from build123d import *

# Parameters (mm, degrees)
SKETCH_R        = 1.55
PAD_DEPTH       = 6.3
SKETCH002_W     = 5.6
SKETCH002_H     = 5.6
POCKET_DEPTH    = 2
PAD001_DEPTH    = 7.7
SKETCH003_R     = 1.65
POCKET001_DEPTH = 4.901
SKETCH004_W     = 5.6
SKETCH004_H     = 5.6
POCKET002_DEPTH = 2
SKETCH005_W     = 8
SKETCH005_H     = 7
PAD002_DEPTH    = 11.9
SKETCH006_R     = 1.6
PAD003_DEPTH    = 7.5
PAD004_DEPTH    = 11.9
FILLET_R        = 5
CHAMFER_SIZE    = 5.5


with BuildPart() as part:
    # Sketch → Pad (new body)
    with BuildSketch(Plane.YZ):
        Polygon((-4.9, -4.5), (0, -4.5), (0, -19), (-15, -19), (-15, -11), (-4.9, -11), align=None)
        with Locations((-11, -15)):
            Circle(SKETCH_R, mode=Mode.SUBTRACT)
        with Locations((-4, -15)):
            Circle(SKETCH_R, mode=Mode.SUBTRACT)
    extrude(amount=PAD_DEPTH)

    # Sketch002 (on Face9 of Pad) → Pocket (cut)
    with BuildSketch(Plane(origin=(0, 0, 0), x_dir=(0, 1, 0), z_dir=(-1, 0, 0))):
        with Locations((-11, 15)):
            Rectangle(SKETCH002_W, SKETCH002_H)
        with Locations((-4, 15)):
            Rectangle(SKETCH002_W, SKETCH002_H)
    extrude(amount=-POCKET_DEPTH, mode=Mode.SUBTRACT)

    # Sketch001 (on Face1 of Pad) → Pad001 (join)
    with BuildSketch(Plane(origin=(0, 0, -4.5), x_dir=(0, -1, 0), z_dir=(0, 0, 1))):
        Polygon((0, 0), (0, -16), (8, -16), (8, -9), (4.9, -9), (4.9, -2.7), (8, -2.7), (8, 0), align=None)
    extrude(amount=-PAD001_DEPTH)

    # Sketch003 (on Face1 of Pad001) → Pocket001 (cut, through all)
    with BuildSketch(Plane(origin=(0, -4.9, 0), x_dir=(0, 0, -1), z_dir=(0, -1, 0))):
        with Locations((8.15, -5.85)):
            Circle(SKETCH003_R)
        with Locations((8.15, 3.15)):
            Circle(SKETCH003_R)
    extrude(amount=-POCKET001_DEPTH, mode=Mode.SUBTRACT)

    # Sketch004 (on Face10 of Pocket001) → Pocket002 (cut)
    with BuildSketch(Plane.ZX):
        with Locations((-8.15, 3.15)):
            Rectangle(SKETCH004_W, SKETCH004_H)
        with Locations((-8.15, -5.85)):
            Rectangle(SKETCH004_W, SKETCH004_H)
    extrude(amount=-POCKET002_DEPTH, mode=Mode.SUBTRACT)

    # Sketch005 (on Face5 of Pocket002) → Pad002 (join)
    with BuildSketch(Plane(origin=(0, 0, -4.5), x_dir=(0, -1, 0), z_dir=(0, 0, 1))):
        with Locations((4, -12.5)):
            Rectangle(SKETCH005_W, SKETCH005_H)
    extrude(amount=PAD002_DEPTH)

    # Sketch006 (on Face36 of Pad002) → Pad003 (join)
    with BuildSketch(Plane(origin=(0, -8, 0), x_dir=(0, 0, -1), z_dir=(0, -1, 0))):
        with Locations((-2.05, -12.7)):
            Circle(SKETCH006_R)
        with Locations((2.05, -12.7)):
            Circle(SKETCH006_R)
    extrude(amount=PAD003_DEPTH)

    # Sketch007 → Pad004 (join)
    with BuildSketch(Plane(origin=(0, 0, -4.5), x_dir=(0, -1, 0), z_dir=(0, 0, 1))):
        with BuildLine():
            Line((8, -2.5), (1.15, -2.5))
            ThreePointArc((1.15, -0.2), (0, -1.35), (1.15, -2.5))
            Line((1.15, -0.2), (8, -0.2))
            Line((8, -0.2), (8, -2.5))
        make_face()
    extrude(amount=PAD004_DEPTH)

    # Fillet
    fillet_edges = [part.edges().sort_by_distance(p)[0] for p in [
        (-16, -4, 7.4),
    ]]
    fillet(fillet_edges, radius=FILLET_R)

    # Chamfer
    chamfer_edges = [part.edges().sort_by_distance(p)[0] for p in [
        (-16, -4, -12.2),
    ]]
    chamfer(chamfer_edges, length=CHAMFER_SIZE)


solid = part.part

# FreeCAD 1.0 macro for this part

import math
import FreeCAD as App
import Part
import Sketcher
from FreeCAD import Vector


def edges_at(feature, points):
    """Names of the edges that pass closest to the given points."""
    edges = feature.Shape.Edges
    near = lambda p: min(range(len(edges)), key=lambda i: edges[i].distToShape(Part.Vertex(*p))[0])
    return sorted({f"Edge{near(p) + 1}" for p in points})

doc = App.newDocument("Part")
body = doc.addObject("PartDesign::Body", "Body")

sketch1 = body.newObject("Sketcher::SketchObject", "Sketch")
sketch1.AttachmentSupport = (doc.getObject("YZ_Plane"), [""])
sketch1.MapMode = "FlatFace"
sketch1.addGeometry(Part.LineSegment(Vector(0, -4.5, 0), Vector(-4.9, -4.5, 0)), False)
sketch1.addGeometry(Part.LineSegment(Vector(-4.9, -4.5, 0), Vector(-4.9, -11, 0)), False)
sketch1.addGeometry(Part.LineSegment(Vector(-4.9, -11, 0), Vector(-15, -11, 0)), False)
sketch1.addGeometry(Part.LineSegment(Vector(-15, -11, 0), Vector(-15, -19, 0)), False)
sketch1.addGeometry(Part.LineSegment(Vector(-15, -19, 0), Vector(0, -19, 0)), False)
sketch1.addGeometry(Part.LineSegment(Vector(0, -19, 0), Vector(0, -4.5, 0)), False)
sketch1.addGeometry(Part.Circle(Vector(-4, -15, 0), Vector(0, 0, 1), 1.6), False)
sketch1.addGeometry(Part.Circle(Vector(-11, -15, 0), Vector(0, 0, 1), 1.6), False)
sketch1.addConstraint(Sketcher.Constraint("Coincident", 0, 2, 1, 1))
sketch1.addConstraint(Sketcher.Constraint("Coincident", 1, 2, 2, 1))
sketch1.addConstraint(Sketcher.Constraint("Coincident", 2, 2, 3, 1))
sketch1.addConstraint(Sketcher.Constraint("Coincident", 3, 2, 4, 1))
sketch1.addConstraint(Sketcher.Constraint("Coincident", 4, 2, 5, 1))
sketch1.addConstraint(Sketcher.Constraint("Coincident", 5, 2, 0, 1))
sketch1.addConstraint(Sketcher.Constraint("Horizontal", 0))
sketch1.addConstraint(Sketcher.Constraint("Vertical", 1))
sketch1.addConstraint(Sketcher.Constraint("Horizontal", 2))
sketch1.addConstraint(Sketcher.Constraint("Vertical", 3))
sketch1.addConstraint(Sketcher.Constraint("Horizontal", 4))
sketch1.addConstraint(Sketcher.Constraint("Vertical", 5))
sketch1.addConstraint(Sketcher.Constraint("Equal", 6, 7))
sketch1.addConstraint(Sketcher.Constraint("PointOnObject", 4, 2, -2))
sketch1.addConstraint(Sketcher.Constraint("Horizontal", 6, 3, 7, 3))
sketch1.addConstraint(Sketcher.Constraint("Diameter", 6, 3.1))
sketch1.addConstraint(Sketcher.Constraint("DistanceX", 4, 1, 4, 2, 15.0))
sketch1.addConstraint(Sketcher.Constraint("DistanceY", 3, 2, 3, 1, 8.0))
sketch1.addConstraint(Sketcher.Constraint("DistanceX", 0, 2, 0, 1, 4.9))
sketch1.addConstraint(Sketcher.Constraint("DistanceY", 1, 2, 1, 1, 6.5))
sketch1.addConstraint(Sketcher.Constraint("DistanceX", 6, 3, -1, 1, 4.0))
sketch1.addConstraint(Sketcher.Constraint("DistanceY", 6, 3, -1, 1, 15.0))
sketch1.addConstraint(Sketcher.Constraint("DistanceX", 7, 3, -1, 1, 11.0))
sketch1.addConstraint(Sketcher.Constraint("DistanceY", 1, 2, -1, 1, 11.0))
pad1 = body.newObject("PartDesign::Pad", "Pad")
pad1.Profile = sketch1
pad1.Length = 6.3

sketch2 = body.newObject("Sketcher::SketchObject", "Sketch001")
sketch2.AttachmentSupport = (doc.getObject("YZ_Plane"), [""])
sketch2.MapMode = "FlatFace"
sketch2.addGeometry(Part.LineSegment(Vector(-14, -18, 0), Vector(-14, -12, 0)), False)
sketch2.addGeometry(Part.LineSegment(Vector(-14, -12, 0), Vector(-8, -12, 0)), False)
sketch2.addGeometry(Part.LineSegment(Vector(-8, -12, 0), Vector(-8, -18, 0)), False)
sketch2.addGeometry(Part.LineSegment(Vector(-8, -18, 0), Vector(-14, -18, 0)), False)
sketch2.addGeometry(Part.LineSegment(Vector(-7, -18, 0), Vector(-7, -12, 0)), False)
sketch2.addGeometry(Part.LineSegment(Vector(-7, -12, 0), Vector(-1, -12, 0)), False)
sketch2.addGeometry(Part.LineSegment(Vector(-1, -12, 0), Vector(-1, -18, 0)), False)
sketch2.addGeometry(Part.LineSegment(Vector(-1, -18, 0), Vector(-7, -18, 0)), False)
sketch2.addConstraint(Sketcher.Constraint("Coincident", 0, 2, 1, 1))
sketch2.addConstraint(Sketcher.Constraint("Coincident", 1, 2, 2, 1))
sketch2.addConstraint(Sketcher.Constraint("Coincident", 2, 2, 3, 1))
sketch2.addConstraint(Sketcher.Constraint("Coincident", 3, 2, 0, 1))
sketch2.addConstraint(Sketcher.Constraint("Coincident", 4, 2, 5, 1))
sketch2.addConstraint(Sketcher.Constraint("Coincident", 5, 2, 6, 1))
sketch2.addConstraint(Sketcher.Constraint("Coincident", 6, 2, 7, 1))
sketch2.addConstraint(Sketcher.Constraint("Coincident", 7, 2, 4, 1))
sketch2.addConstraint(Sketcher.Constraint("Vertical", 0))
sketch2.addConstraint(Sketcher.Constraint("Horizontal", 1))
sketch2.addConstraint(Sketcher.Constraint("Vertical", 2))
sketch2.addConstraint(Sketcher.Constraint("Horizontal", 3))
sketch2.addConstraint(Sketcher.Constraint("Vertical", 4))
sketch2.addConstraint(Sketcher.Constraint("Horizontal", 5))
sketch2.addConstraint(Sketcher.Constraint("Vertical", 6))
sketch2.addConstraint(Sketcher.Constraint("Horizontal", 7))
sketch2.addConstraint(Sketcher.Constraint("Horizontal", 1, 2, 4, 2))
sketch2.addConstraint(Sketcher.Constraint("Horizontal", 3, 2, 6, 2))
sketch2.addConstraint(Sketcher.Constraint("Equal", 3, 5))
sketch2.addConstraint(Sketcher.Constraint("Equal", 7, 0))
sketch2.addConstraint(Sketcher.Constraint("DistanceX", 1, 1, 1, 2, 5.6))
sketch2.addConstraint(Sketcher.Constraint("DistanceX", 0, 2, 4, 2, 7.0))
sketch2.addConstraint(Sketcher.Constraint("DistanceX", 0, 2, -1, 1, 13.8))
sketch2.addConstraint(Sketcher.Constraint("DistanceY", 0, 2, -1, 1, 12.2))
pocket1 = body.newObject("PartDesign::Pocket", "Pocket")
pocket1.Profile = sketch2
pocket1.Length = 2
pocket1.Reversed = True

sketch3 = body.newObject("Sketcher::SketchObject", "Sketch002")
sketch3.AttachmentSupport = (doc.getObject("XY_Plane"), [""])
sketch3.MapMode = "FlatFace"
sketch3.AttachmentOffset = App.Placement(Vector(0, 0, -4.5), App.Rotation())
sketch3.addGeometry(Part.LineSegment(Vector(0, 0, 0), Vector(-16, 0, 0)), False)
sketch3.addGeometry(Part.LineSegment(Vector(-16, 0, 0), Vector(-16, -8, 0)), False)
sketch3.addGeometry(Part.LineSegment(Vector(-16, -8, 0), Vector(-9, -8, 0)), False)
sketch3.addGeometry(Part.LineSegment(Vector(-9, -8, 0), Vector(-9, -4.9, 0)), False)
sketch3.addGeometry(Part.LineSegment(Vector(-9, -4.9, 0), Vector(-2.7, -4.9, 0)), False)
sketch3.addGeometry(Part.LineSegment(Vector(-2.7, -4.9, 0), Vector(-2.7, -8, 0)), False)
sketch3.addGeometry(Part.LineSegment(Vector(-2.7, -8, 0), Vector(0, -8, 0)), False)
sketch3.addGeometry(Part.LineSegment(Vector(0, -8, 0), Vector(0, 0, 0)), False)
sketch3.addConstraint(Sketcher.Constraint("Coincident", 0, 2, 1, 1))
sketch3.addConstraint(Sketcher.Constraint("Coincident", 1, 2, 2, 1))
sketch3.addConstraint(Sketcher.Constraint("Coincident", 2, 2, 3, 1))
sketch3.addConstraint(Sketcher.Constraint("Coincident", 3, 2, 4, 1))
sketch3.addConstraint(Sketcher.Constraint("Coincident", 4, 2, 5, 1))
sketch3.addConstraint(Sketcher.Constraint("Coincident", 5, 2, 6, 1))
sketch3.addConstraint(Sketcher.Constraint("Coincident", 6, 2, 7, 1))
sketch3.addConstraint(Sketcher.Constraint("Coincident", 7, 2, 0, 1))
sketch3.addConstraint(Sketcher.Constraint("Horizontal", 0))
sketch3.addConstraint(Sketcher.Constraint("Vertical", 1))
sketch3.addConstraint(Sketcher.Constraint("Horizontal", 2))
sketch3.addConstraint(Sketcher.Constraint("Vertical", 3))
sketch3.addConstraint(Sketcher.Constraint("Horizontal", 4))
sketch3.addConstraint(Sketcher.Constraint("Vertical", 5))
sketch3.addConstraint(Sketcher.Constraint("Horizontal", 6))
sketch3.addConstraint(Sketcher.Constraint("Vertical", 7))
sketch3.addConstraint(Sketcher.Constraint("Coincident", 7, 2, -1, 1))
sketch3.addConstraint(Sketcher.Constraint("Horizontal", 2, 2, 5, 2))
sketch3.addConstraint(Sketcher.Constraint("DistanceX", 0, 2, 0, 1, 16.0))
sketch3.addConstraint(Sketcher.Constraint("DistanceX", 2, 1, 2, 2, 7.0))
sketch3.addConstraint(Sketcher.Constraint("DistanceY", 1, 2, 1, 1, 8.0))
sketch3.addConstraint(Sketcher.Constraint("DistanceX", 4, 1, 4, 2, 6.3))
sketch3.addConstraint(Sketcher.Constraint("DistanceY", 3, 1, 3, 2, 3.1))
pad2 = body.newObject("PartDesign::Pad", "Pad001")
pad2.Profile = sketch3
pad2.Length = 7.7
pad2.Reversed = True

sketch4 = body.newObject("Sketcher::SketchObject", "Sketch003")
sketch4.AttachmentSupport = (doc.getObject("XZ_Plane"), [""])
sketch4.MapMode = "FlatFace"
sketch4.AttachmentOffset = App.Placement(Vector(0, 0, 4.9), App.Rotation())
sketch4.addGeometry(Part.Circle(Vector(-5.8, -8.2, 0), Vector(0, 0, 1), 1.6), False)
sketch4.addGeometry(Part.Circle(Vector(3.1, -8.2, 0), Vector(0, 0, 1), 1.6), False)
sketch4.addConstraint(Sketcher.Constraint("Equal", 0, 1))
sketch4.addConstraint(Sketcher.Constraint("Horizontal", 0, 3, 1, 3))
sketch4.addConstraint(Sketcher.Constraint("Diameter", 0, 3.3))
sketch4.addConstraint(Sketcher.Constraint("DistanceX", 0, 3, 1, 3, 9.0))
sketch4.addConstraint(Sketcher.Constraint("DistanceX", 0, 3, -1, 1, 5.85))
sketch4.addConstraint(Sketcher.Constraint("DistanceY", 0, 3, -1, 1, 8.15))
pocket2 = body.newObject("PartDesign::Pocket", "Pocket001")
pocket2.Profile = sketch4
pocket2.Type = "ThroughAll"

sketch5 = body.newObject("Sketcher::SketchObject", "Sketch004")
sketch5.AttachmentSupport = (doc.getObject("XZ_Plane"), [""])
sketch5.MapMode = "FlatFace"
sketch5.addGeometry(Part.LineSegment(Vector(6, -11, 0), Vector(0, -11, 0)), False)
sketch5.addGeometry(Part.LineSegment(Vector(0, -11, 0), Vector(0, -5, 0)), False)
sketch5.addGeometry(Part.LineSegment(Vector(0, -5, 0), Vector(6, -5, 0)), False)
sketch5.addGeometry(Part.LineSegment(Vector(6, -5, 0), Vector(6, -11, 0)), False)
sketch5.addGeometry(Part.LineSegment(Vector(-3, -11, 0), Vector(-9, -11, 0)), False)
sketch5.addGeometry(Part.LineSegment(Vector(-9, -11, 0), Vector(-9, -5, 0)), False)
sketch5.addGeometry(Part.LineSegment(Vector(-9, -5, 0), Vector(-3, -5, 0)), False)
sketch5.addGeometry(Part.LineSegment(Vector(-3, -5, 0), Vector(-3, -11, 0)), False)
sketch5.addConstraint(Sketcher.Constraint("Coincident", 0, 2, 1, 1))
sketch5.addConstraint(Sketcher.Constraint("Coincident", 1, 2, 2, 1))
sketch5.addConstraint(Sketcher.Constraint("Coincident", 2, 2, 3, 1))
sketch5.addConstraint(Sketcher.Constraint("Coincident", 3, 2, 0, 1))
sketch5.addConstraint(Sketcher.Constraint("Coincident", 4, 2, 5, 1))
sketch5.addConstraint(Sketcher.Constraint("Coincident", 5, 2, 6, 1))
sketch5.addConstraint(Sketcher.Constraint("Coincident", 6, 2, 7, 1))
sketch5.addConstraint(Sketcher.Constraint("Coincident", 7, 2, 4, 1))
sketch5.addConstraint(Sketcher.Constraint("Horizontal", 0))
sketch5.addConstraint(Sketcher.Constraint("Vertical", 1))
sketch5.addConstraint(Sketcher.Constraint("Horizontal", 2))
sketch5.addConstraint(Sketcher.Constraint("Vertical", 3))
sketch5.addConstraint(Sketcher.Constraint("Horizontal", 4))
sketch5.addConstraint(Sketcher.Constraint("Vertical", 5))
sketch5.addConstraint(Sketcher.Constraint("Horizontal", 6))
sketch5.addConstraint(Sketcher.Constraint("Vertical", 7))
sketch5.addConstraint(Sketcher.Constraint("Horizontal", 3, 2, 4, 2))
sketch5.addConstraint(Sketcher.Constraint("Horizontal", 2, 2, 5, 2))
sketch5.addConstraint(Sketcher.Constraint("Equal", 2, 4))
sketch5.addConstraint(Sketcher.Constraint("Equal", 6, 1))
sketch5.addConstraint(Sketcher.Constraint("DistanceX", 0, 2, 0, 1, 5.6))
sketch5.addConstraint(Sketcher.Constraint("DistanceX", 4, 2, 0, 2, 9.0))
sketch5.addConstraint(Sketcher.Constraint("DistanceX", -1, 1, 0, 2, 0.35))
sketch5.addConstraint(Sketcher.Constraint("DistanceY", 0, 2, -1, 1, 10.95))
pocket3 = body.newObject("PartDesign::Pocket", "Pocket002")
pocket3.Profile = sketch5
pocket3.Length = 2
pocket3.Reversed = True

sketch6 = body.newObject("Sketcher::SketchObject", "Sketch005")
sketch6.AttachmentSupport = (doc.getObject("XY_Plane"), [""])
sketch6.MapMode = "FlatFace"
sketch6.AttachmentOffset = App.Placement(Vector(0, 0, -4.5), App.Rotation())
sketch6.addGeometry(Part.LineSegment(Vector(-9, 0, 0), Vector(-16, 0, 0)), False)
sketch6.addGeometry(Part.LineSegment(Vector(-16, 0, 0), Vector(-16, -8, 0)), False)
sketch6.addGeometry(Part.LineSegment(Vector(-16, -8, 0), Vector(-9, -8, 0)), False)
sketch6.addGeometry(Part.LineSegment(Vector(-9, -8, 0), Vector(-9, 0, 0)), False)
sketch6.addConstraint(Sketcher.Constraint("Coincident", 0, 2, 1, 1))
sketch6.addConstraint(Sketcher.Constraint("Coincident", 1, 2, 2, 1))
sketch6.addConstraint(Sketcher.Constraint("Coincident", 2, 2, 3, 1))
sketch6.addConstraint(Sketcher.Constraint("Coincident", 3, 2, 0, 1))
sketch6.addConstraint(Sketcher.Constraint("Horizontal", 0))
sketch6.addConstraint(Sketcher.Constraint("Vertical", 1))
sketch6.addConstraint(Sketcher.Constraint("Horizontal", 2))
sketch6.addConstraint(Sketcher.Constraint("Vertical", 3))
sketch6.addConstraint(Sketcher.Constraint("PointOnObject", 0, 2, -1))
sketch6.addConstraint(Sketcher.Constraint("DistanceX", 0, 2, 0, 1, 7.0))
sketch6.addConstraint(Sketcher.Constraint("DistanceY", 1, 2, 1, 1, 8.0))
sketch6.addConstraint(Sketcher.Constraint("DistanceX", 0, 2, -1, 1, 16.0))
pad3 = body.newObject("PartDesign::Pad", "Pad002")
pad3.Profile = sketch6
pad3.Length = 11.9

sketch7 = body.newObject("Sketcher::SketchObject", "Sketch006")
sketch7.AttachmentSupport = (doc.getObject("XZ_Plane"), [""])
sketch7.MapMode = "FlatFace"
sketch7.AttachmentOffset = App.Placement(Vector(0, 0, 8), App.Rotation())
sketch7.addGeometry(Part.Circle(Vector(-12.7, 2, 0), Vector(0, 0, 1), 1.6), False)
sketch7.addGeometry(Part.Circle(Vector(-12.7, -2, 0), Vector(0, 0, 1), 1.6), False)
sketch7.addConstraint(Sketcher.Constraint("Equal", 0, 1))
sketch7.addConstraint(Sketcher.Constraint("Symmetric", 0, 3, 1, 3, -1))
sketch7.addConstraint(Sketcher.Constraint("Diameter", 0, 3.2))
sketch7.addConstraint(Sketcher.Constraint("DistanceX", 0, 3, -1, 1, 12.7))
sketch7.addConstraint(Sketcher.Constraint("DistanceY", 1, 3, 0, 3, 4.1))
pad4 = body.newObject("PartDesign::Pad", "Pad003")
pad4.Profile = sketch7
pad4.Length = 7.5

sketch8 = body.newObject("Sketcher::SketchObject", "Sketch007")
sketch8.AttachmentSupport = (doc.getObject("XY_Plane"), [""])
sketch8.MapMode = "FlatFace"
sketch8.AttachmentOffset = App.Placement(Vector(0, 0, -4.5), App.Rotation())
sketch8.addGeometry(Part.LineSegment(Vector(-2.5, -1.1, 0), Vector(-2.5, -8, 0)), False)
sketch8.addGeometry(Part.LineSegment(Vector(-2.5, -8, 0), Vector(-0.2, -8, 0)), False)
sketch8.addGeometry(Part.LineSegment(Vector(-0.2, -8, 0), Vector(-0.2, -1.1, 0)), False)
sketch8.addGeometry(Part.ArcOfCircle(Part.Circle(Vector(-1.4, -1.1, 0), Vector(0, 0, 1), 1.1), math.radians(0), math.radians(180)), False)
sketch8.addConstraint(Sketcher.Constraint("Coincident", 0, 2, 1, 1))
sketch8.addConstraint(Sketcher.Constraint("Coincident", 1, 2, 2, 1))
sketch8.addConstraint(Sketcher.Constraint("Tangent", 2, 2, 3, 1))
sketch8.addConstraint(Sketcher.Constraint("Tangent", 3, 2, 0, 1))
sketch8.addConstraint(Sketcher.Constraint("Vertical", 0))
sketch8.addConstraint(Sketcher.Constraint("Horizontal", 1))
sketch8.addConstraint(Sketcher.Constraint("Vertical", 2))
sketch8.addConstraint(Sketcher.Constraint("Radius", 3, 1.15))
sketch8.addConstraint(Sketcher.Constraint("DistanceY", 0, 2, -1, 1, 8.0))
sketch8.addConstraint(Sketcher.Constraint("DistanceY", 0, 2, 0, 1, 6.85))
sketch8.addConstraint(Sketcher.Constraint("DistanceX", 0, 2, -1, 1, 2.5))
pad5 = body.newObject("PartDesign::Pad", "Pad004")
pad5.Profile = sketch8
pad5.Length = 11.9
doc.recompute()

fillet = body.newObject("PartDesign::Fillet", "Fillet")
fillet.Base = (pad5, edges_at(pad5, [(-16, -4, 7.4)]))
fillet.Radius = 5
doc.recompute()

chamfer = body.newObject("PartDesign::Chamfer", "Chamfer")
chamfer.Base = (fillet, edges_at(fillet, [(-16, -4, -12.2)]))
chamfer.Size = 5.5

doc.recompute()
